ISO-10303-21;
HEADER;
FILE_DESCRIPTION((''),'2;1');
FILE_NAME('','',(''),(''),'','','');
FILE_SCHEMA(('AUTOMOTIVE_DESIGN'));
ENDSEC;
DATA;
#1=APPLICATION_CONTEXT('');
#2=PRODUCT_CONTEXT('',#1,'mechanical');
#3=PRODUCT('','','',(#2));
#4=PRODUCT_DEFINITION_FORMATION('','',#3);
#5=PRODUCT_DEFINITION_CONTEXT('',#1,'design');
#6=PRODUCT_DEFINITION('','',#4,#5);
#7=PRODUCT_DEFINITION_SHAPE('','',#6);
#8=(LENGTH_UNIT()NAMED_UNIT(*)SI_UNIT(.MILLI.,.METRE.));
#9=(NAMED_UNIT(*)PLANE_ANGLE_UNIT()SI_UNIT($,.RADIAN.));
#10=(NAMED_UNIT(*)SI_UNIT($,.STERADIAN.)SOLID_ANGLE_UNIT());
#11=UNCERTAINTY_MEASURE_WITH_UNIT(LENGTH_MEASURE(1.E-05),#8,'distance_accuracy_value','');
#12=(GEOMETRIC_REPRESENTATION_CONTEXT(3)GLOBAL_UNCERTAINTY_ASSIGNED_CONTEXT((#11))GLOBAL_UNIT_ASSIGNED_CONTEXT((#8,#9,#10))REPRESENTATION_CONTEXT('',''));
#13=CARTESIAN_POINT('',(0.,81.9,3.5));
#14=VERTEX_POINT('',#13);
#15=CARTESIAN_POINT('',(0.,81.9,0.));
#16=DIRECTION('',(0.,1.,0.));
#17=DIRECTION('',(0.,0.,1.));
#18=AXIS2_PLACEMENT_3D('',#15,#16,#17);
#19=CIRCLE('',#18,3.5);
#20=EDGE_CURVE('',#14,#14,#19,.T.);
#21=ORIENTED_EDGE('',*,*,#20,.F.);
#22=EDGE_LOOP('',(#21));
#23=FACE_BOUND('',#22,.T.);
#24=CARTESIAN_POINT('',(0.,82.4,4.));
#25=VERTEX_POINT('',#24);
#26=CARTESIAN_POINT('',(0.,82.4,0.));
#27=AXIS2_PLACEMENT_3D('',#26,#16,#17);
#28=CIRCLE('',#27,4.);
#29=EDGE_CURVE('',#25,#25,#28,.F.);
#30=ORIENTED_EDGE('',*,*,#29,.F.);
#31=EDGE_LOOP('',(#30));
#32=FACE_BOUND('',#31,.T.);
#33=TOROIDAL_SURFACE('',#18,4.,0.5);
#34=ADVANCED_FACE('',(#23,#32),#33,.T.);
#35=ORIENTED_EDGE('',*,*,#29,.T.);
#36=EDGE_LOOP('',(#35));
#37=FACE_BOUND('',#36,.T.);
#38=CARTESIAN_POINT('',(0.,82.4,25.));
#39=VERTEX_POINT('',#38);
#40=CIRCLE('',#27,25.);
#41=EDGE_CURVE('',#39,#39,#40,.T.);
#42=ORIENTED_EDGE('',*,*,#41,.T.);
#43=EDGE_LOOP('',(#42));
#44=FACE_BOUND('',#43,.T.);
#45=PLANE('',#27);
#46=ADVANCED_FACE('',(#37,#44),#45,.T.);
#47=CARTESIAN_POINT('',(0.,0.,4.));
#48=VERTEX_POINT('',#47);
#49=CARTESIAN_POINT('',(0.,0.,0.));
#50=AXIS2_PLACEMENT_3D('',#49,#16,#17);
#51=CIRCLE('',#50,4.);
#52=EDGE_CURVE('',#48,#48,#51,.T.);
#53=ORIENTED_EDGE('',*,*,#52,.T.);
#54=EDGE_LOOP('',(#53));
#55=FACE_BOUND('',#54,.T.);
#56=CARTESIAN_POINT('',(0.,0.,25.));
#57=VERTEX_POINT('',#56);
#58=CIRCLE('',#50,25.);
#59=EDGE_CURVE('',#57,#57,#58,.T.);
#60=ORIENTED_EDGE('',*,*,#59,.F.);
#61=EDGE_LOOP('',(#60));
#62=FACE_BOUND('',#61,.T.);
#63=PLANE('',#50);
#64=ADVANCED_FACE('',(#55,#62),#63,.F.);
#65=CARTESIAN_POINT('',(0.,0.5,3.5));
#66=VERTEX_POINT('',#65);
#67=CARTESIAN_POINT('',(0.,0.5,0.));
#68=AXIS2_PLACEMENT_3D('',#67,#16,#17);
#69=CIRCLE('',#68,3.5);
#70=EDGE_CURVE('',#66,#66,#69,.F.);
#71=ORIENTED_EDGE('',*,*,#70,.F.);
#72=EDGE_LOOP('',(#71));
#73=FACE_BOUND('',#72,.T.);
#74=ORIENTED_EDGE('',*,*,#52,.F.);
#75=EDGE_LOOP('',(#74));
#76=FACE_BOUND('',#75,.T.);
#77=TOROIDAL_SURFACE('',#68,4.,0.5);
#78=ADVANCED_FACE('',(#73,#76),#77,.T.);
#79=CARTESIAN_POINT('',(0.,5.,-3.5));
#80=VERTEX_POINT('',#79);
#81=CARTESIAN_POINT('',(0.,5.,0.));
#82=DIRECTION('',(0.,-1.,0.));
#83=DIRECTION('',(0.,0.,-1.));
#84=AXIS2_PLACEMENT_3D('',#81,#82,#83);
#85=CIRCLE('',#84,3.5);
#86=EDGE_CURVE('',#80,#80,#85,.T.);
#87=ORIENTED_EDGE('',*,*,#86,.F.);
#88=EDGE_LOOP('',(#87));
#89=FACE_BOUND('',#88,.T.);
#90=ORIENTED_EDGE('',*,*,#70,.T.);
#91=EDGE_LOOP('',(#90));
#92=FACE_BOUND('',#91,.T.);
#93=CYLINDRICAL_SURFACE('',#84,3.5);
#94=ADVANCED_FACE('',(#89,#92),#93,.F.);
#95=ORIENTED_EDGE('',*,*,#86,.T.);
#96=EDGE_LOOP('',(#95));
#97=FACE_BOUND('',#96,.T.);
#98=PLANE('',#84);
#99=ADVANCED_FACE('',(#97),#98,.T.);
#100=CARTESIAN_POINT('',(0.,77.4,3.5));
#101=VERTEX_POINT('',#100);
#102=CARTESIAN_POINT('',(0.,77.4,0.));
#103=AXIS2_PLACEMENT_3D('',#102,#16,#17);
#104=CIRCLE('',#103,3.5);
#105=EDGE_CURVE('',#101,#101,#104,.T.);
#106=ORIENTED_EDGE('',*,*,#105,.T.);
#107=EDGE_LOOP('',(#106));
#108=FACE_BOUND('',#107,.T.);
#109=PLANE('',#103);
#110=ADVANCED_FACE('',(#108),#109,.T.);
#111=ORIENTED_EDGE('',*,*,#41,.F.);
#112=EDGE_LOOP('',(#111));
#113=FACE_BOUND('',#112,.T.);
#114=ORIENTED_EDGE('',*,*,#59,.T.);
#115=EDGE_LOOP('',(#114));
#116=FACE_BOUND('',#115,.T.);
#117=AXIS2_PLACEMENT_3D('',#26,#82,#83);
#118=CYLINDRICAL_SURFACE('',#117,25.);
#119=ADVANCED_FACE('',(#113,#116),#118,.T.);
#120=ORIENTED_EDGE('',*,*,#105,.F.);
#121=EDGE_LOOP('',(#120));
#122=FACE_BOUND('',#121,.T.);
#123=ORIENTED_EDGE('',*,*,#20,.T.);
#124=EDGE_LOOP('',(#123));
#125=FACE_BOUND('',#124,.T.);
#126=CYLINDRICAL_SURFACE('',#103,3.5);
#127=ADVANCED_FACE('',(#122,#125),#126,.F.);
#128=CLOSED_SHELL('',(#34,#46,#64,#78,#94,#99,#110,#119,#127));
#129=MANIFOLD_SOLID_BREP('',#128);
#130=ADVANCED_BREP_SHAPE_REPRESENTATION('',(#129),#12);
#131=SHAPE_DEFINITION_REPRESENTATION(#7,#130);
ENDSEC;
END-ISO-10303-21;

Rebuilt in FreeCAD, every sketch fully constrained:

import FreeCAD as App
import Part
import Sketcher

V = App.Vector


def edges_at(feature, points):
    """Names of the edges that pass closest to the given points."""
    edges = feature.Shape.Edges
    near = lambda p: min(range(len(edges)), key=lambda i: edges[i].distToShape(Part.Vertex(*p))[0])
    return sorted({f"Edge{near(p) + 1}" for p in points})

doc = App.newDocument("Part")
params = doc.addObject("Spreadsheet::Sheet", "Params")
for row, (alias, value) in enumerate([
    ("sketch1_diameter", "50 mm"),
    ("pad1_length", "82.4 mm"),
    ("sketch2_diameter", "7 mm"),
    ("pocket1_length", "5 mm"),
    ("sketch3_diameter", "7 mm"),
    ("pocket2_length", "5 mm"),
    ("fillet_radius", "0.5 mm"),
], start=1):
    params.set(f"A{row}", alias)
    params.set(f"B{row}", "=" + value)
    params.setAlias(f"B{row}", alias)

body = doc.addObject("PartDesign::Body", "Body")

# Sketch on XZ plane
sketch1 = body.newObject("Sketcher::SketchObject", "Sketch")
sketch1.AttachmentSupport = (doc.getObject("XZ_Plane"), [""])
sketch1.MapMode = "FlatFace"
sketch1.addGeometry(Part.Circle(V(0, 0, 0), V(0, 0, 1), 25), False)
sketch1.addConstraint([
    Sketcher.Constraint("Coincident", 0, 3, -1, 1),
    Sketcher.Constraint("Diameter", 0, 50.0),
])
sketch1.setExpression("Constraints[1]", "Params.sketch1_diameter")
pad1 = body.newObject("PartDesign::Pad", "Pad")
pad1.Profile = sketch1
pad1.setExpression("Length", "Params.pad1_length")
pad1.Reversed = True

# Sketch on XZ plane
sketch2 = body.newObject("Sketcher::SketchObject", "Sketch001")
sketch2.AttachmentSupport = (doc.getObject("XZ_Plane"), [""])
sketch2.MapMode = "FlatFace"
sketch2.AttachmentOffset = App.Placement(V(0, 0, -82.4), App.Rotation())
sketch2.addGeometry(Part.Circle(V(0, 0, 0), V(0, 0, 1), 3.5), False)
sketch2.addConstraint([
    Sketcher.Constraint("Coincident", 0, 3, -1, 1),
    Sketcher.Constraint("Diameter", 0, 7.0),
])
sketch2.setExpression("Constraints[1]", "Params.sketch2_diameter")
pocket1 = body.newObject("PartDesign::Pocket", "Pocket")
pocket1.Profile = sketch2
pocket1.setExpression("Length", "Params.pocket1_length")
pocket1.Reversed = True

# Sketch on XZ plane
sketch3 = body.newObject("Sketcher::SketchObject", "Sketch002")
sketch3.AttachmentSupport = (doc.getObject("XZ_Plane"), [""])
sketch3.MapMode = "FlatFace"
sketch3.addGeometry(Part.Circle(V(0, 0, 0), V(0, 0, 1), 3.5), False)
sketch3.addConstraint([
    Sketcher.Constraint("Coincident", 0, 3, -1, 1),
    Sketcher.Constraint("Diameter", 0, 7.0),
])
sketch3.setExpression("Constraints[1]", "Params.sketch3_diameter")
pocket2 = body.newObject("PartDesign::Pocket", "Pocket001")
pocket2.Profile = sketch3
pocket2.setExpression("Length", "Params.pocket2_length")
doc.recompute()

fillet = body.newObject("PartDesign::Fillet", "Fillet")
fillet.Base = (pocket2, edges_at(pocket2, [(0, 0, -3.5), (0, 82.4, -3.5)]))
fillet.setExpression("Radius", "Params.fillet_radius")

doc.recompute()
